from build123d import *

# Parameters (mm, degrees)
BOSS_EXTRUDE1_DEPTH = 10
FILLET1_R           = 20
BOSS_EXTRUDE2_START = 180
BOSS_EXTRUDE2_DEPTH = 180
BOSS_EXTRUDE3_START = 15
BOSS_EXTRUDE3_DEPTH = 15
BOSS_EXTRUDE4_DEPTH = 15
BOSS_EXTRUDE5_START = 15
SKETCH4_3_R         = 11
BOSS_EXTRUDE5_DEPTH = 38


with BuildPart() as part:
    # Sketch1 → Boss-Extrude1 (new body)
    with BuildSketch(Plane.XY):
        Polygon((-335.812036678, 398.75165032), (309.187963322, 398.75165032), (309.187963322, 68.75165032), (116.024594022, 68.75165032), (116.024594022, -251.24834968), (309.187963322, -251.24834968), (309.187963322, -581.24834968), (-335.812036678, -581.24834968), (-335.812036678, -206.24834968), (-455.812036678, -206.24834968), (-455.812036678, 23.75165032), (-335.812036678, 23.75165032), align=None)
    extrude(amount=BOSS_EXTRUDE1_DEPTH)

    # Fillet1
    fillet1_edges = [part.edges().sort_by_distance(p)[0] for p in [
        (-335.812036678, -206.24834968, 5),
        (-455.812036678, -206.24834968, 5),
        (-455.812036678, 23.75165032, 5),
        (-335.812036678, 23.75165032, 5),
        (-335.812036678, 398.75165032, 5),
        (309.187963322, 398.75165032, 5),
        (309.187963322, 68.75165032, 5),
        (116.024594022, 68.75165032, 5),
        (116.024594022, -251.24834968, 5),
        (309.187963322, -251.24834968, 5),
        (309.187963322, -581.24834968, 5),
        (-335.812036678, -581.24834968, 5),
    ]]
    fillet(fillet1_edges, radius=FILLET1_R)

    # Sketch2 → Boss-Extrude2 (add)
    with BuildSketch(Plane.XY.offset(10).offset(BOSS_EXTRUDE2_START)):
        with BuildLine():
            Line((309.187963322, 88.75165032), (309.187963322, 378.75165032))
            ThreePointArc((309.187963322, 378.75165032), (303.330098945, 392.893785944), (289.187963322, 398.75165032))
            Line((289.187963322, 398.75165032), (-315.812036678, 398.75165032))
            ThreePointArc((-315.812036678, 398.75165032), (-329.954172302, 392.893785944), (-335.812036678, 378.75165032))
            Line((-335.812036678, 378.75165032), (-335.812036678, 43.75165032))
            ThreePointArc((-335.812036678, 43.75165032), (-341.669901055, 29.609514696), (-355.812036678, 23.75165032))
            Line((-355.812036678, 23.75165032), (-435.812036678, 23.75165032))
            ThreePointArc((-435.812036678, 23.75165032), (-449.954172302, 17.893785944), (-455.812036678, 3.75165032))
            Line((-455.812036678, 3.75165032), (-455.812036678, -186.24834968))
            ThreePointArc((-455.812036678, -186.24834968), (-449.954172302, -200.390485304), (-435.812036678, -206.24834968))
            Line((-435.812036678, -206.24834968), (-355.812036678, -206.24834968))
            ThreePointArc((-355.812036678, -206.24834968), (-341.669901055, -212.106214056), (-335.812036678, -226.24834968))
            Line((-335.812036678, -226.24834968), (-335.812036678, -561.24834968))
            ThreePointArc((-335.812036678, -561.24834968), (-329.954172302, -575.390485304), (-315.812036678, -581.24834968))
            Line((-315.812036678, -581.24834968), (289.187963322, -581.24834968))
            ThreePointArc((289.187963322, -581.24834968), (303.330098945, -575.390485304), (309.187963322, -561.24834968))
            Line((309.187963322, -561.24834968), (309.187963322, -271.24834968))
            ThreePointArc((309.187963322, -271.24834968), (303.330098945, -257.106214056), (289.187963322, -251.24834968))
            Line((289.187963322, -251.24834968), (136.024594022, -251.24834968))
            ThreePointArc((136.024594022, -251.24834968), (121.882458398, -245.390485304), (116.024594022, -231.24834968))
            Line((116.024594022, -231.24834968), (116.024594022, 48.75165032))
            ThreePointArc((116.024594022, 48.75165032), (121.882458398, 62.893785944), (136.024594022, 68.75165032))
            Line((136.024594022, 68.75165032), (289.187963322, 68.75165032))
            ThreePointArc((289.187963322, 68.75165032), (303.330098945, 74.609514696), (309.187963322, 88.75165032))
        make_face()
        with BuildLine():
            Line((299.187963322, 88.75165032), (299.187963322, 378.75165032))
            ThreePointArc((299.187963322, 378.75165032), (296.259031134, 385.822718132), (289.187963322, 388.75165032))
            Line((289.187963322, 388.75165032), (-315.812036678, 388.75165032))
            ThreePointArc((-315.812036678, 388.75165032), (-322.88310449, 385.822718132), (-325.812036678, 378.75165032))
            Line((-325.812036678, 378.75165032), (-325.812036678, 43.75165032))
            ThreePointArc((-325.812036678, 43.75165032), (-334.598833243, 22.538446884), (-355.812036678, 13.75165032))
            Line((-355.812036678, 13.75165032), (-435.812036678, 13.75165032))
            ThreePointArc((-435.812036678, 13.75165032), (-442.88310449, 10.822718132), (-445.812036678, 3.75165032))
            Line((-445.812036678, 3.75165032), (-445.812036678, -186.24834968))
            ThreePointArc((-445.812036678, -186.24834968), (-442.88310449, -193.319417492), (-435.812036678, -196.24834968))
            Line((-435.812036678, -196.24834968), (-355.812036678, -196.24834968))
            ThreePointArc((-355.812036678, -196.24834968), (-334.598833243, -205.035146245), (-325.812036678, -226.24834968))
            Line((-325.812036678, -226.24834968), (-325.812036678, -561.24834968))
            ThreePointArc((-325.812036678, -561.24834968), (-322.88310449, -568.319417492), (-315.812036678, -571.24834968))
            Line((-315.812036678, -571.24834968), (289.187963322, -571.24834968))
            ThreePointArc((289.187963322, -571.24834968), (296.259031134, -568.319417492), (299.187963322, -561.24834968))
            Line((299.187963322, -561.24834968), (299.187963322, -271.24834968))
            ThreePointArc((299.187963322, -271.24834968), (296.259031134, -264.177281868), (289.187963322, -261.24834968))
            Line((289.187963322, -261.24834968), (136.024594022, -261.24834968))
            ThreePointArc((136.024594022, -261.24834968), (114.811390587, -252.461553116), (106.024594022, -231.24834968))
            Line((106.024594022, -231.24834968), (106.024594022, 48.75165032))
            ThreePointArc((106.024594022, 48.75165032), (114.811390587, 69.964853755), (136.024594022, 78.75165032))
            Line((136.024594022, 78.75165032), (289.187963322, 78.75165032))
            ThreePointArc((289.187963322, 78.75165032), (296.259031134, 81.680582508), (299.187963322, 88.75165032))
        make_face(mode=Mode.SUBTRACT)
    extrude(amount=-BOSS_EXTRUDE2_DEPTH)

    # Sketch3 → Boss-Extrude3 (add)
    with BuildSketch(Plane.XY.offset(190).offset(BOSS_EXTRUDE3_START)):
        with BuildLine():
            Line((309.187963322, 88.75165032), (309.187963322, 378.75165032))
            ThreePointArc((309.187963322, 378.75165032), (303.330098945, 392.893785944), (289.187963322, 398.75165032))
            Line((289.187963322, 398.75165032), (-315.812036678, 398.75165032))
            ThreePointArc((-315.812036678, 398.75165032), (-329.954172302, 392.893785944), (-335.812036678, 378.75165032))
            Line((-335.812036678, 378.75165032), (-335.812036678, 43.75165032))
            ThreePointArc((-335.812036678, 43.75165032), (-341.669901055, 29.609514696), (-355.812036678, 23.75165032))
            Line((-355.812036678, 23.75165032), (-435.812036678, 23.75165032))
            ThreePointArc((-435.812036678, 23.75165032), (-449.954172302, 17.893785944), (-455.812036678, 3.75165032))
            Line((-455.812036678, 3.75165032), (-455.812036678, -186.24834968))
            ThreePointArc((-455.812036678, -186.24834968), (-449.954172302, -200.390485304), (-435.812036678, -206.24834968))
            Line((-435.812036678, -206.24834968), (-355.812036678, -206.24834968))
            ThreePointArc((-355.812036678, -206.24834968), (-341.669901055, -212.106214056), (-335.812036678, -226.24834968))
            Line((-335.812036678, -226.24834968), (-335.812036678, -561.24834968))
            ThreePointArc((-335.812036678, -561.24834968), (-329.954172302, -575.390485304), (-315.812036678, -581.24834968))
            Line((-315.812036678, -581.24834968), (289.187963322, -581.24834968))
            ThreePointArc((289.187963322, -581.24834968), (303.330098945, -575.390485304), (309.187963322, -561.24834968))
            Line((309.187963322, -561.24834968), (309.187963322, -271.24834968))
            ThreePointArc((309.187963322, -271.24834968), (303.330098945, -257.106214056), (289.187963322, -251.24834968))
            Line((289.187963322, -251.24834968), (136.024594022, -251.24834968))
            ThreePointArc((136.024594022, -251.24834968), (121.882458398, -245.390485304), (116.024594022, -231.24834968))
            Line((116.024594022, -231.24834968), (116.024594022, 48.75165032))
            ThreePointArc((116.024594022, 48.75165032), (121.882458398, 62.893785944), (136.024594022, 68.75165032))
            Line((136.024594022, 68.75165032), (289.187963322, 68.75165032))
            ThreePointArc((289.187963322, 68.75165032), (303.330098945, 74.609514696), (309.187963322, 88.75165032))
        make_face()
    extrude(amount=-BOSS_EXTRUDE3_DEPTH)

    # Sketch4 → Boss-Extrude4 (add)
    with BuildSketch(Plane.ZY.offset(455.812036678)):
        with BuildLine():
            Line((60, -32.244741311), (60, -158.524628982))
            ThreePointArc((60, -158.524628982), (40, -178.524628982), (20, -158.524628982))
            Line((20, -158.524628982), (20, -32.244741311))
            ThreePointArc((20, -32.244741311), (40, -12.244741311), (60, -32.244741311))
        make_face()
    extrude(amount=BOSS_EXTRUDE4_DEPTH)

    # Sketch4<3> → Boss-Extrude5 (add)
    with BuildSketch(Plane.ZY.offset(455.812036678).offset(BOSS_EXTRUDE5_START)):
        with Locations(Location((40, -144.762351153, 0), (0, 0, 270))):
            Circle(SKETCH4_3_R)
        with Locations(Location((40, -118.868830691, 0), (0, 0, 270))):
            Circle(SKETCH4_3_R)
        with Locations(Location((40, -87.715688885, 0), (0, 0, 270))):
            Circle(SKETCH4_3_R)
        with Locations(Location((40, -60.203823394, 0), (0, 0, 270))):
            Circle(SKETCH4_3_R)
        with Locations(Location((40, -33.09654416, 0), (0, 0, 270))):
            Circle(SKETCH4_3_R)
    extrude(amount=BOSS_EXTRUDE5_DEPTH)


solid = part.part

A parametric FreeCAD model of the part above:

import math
import FreeCAD as App
import Part
import Sketcher


def edges_at(feature, points):
    """Names of the edges that pass closest to the given points."""
    edges = feature.Shape.Edges
    near = lambda p: min(range(len(edges)), key=lambda i: edges[i].distToShape(Part.Vertex(*p))[0])
    return sorted({f"Edge{near(p) + 1}" for p in points})


def add_polygon(sketch, points):
    """Adds a closed chain of lines whose ends are joined by coincident constraints."""
    first, n = sketch.GeometryCount, len(points)
    for a, b in zip(points, points[1:] + points[:1]):
        sketch.addGeometry(Part.LineSegment(App.Vector(*a, 0), App.Vector(*b, 0)), False)
    for i in range(n):
        sketch.addConstraint(Sketcher.Constraint("Coincident", first + i, 2, first + (i + 1) % n, 1))

doc = App.newDocument("Part")
params = doc.addObject("Spreadsheet::Sheet", "Params")
for row, (alias, value) in enumerate([
    ("sketch1_width", "645 mm"),
    ("sketch1_width2", "120 mm"),
    ("sketch1_height", "375 mm"),
    ("sketch1_height2", "230 mm"),
    ("sketch1_height3", "330 mm"),
    ("pad1_length", "10 mm"),
    ("fillet_radius", "20 mm"),
    ("sketch2_radius", "20 mm"),
    ("sketch2_radius2", "10 mm"),
    ("sketch2_width", "605 mm"),
    ("sketch2_width2", "80 mm"),
    ("sketch2_height", "290 mm"),
    ("pad2_length", "180 mm"),
    ("sketch3_radius", "20 mm"),
    ("sketch3_width", "605 mm"),
    ("sketch3_width2", "80 mm"),
    ("sketch3_height", "290 mm"),
    ("sketch3_height2", "335 mm"),
    ("pad3_length", "15 mm"),
    ("sketch4_radius", "20 mm"),
    ("pad4_length", "15 mm"),
    ("sketch5_diameter", "22 mm"),
    ("pad5_length", "38 mm"),
], start=1):
    params.set(f"A{row}", alias)
    params.set(f"B{row}", "=" + value)
    params.setAlias(f"B{row}", alias)

body = doc.addObject("PartDesign::Body", "Body")

# Sketch on XY plane
sketch1 = doc.addObject("Sketcher::SketchObject", "Sketch")
body.addObject(sketch1)
sketch1.AttachmentSupport = (doc.XY_Plane, [""])
sketch1.MapMode = "FlatFace"
add_polygon(sketch1, [(309, 399), (-336, 399), (-336, 24), (-456, 24), (-456, -206), (-336, -206), (-336, -581), (309, -581), (309, -251), (116, -251), (116, 69), (309, 69)])  # lines 0-11
sketch1.addConstraint(Sketcher.Constraint("Horizontal", 0))
sketch1.addConstraint(Sketcher.Constraint("Vertical", 1))
sketch1.addConstraint(Sketcher.Constraint("Horizontal", 2))
sketch1.addConstraint(Sketcher.Constraint("Vertical", 3))
sketch1.addConstraint(Sketcher.Constraint("Horizontal", 4))
sketch1.addConstraint(Sketcher.Constraint("Vertical", 5))
sketch1.addConstraint(Sketcher.Constraint("Horizontal", 6))
sketch1.addConstraint(Sketcher.Constraint("Vertical", 7))
sketch1.addConstraint(Sketcher.Constraint("Horizontal", 8))
sketch1.addConstraint(Sketcher.Constraint("Vertical", 9))
sketch1.addConstraint(Sketcher.Constraint("Horizontal", 10))
sketch1.addConstraint(Sketcher.Constraint("Vertical", 11))
sketch1.addConstraint(Sketcher.Constraint("Vertical", 1, 2, 4, 2))
sketch1.addConstraint(Sketcher.Constraint("Vertical", 7, 2, 10, 2))
sketch1.addConstraint(Sketcher.Constraint("Equal", 1, 5))
sketch1.addConstraint(Sketcher.Constraint("Equal", 7, 11))
sketch1.addConstraint(Sketcher.Constraint("DistanceX", 0, 2, 0, 1, 645.0))
sketch1.addConstraint(Sketcher.Constraint("DistanceX", 2, 2, 2, 1, 120.0))
sketch1.addConstraint(Sketcher.Constraint("DistanceY", 1, 2, 1, 1, 375.0))
sketch1.addConstraint(Sketcher.Constraint("DistanceY", 3, 2, 3, 1, 230.0))
sketch1.addConstraint(Sketcher.Constraint("DistanceY", 7, 1, 7, 2, 330.0))
sketch1.addConstraint(Sketcher.Constraint("DistanceX", 8, 2, 8, 1, 193.163369))
sketch1.addConstraint(Sketcher.Constraint("DistanceY", -1, 1, 0, 2, 398.75165))
sketch1.addConstraint(Sketcher.Constraint("DistanceX", 0, 2, -1, 1, 335.812037))
sketch1.setExpression("Constraints[28]", "Params.sketch1_width")
sketch1.setExpression("Constraints[29]", "Params.sketch1_width2")
sketch1.setExpression("Constraints[30]", "Params.sketch1_height")
sketch1.setExpression("Constraints[31]", "Params.sketch1_height2")
sketch1.setExpression("Constraints[32]", "Params.sketch1_height3")
pad1 = doc.addObject("PartDesign::Pad", "Pad")
body.addObject(pad1)
pad1.Profile = sketch1
pad1.setExpression("Length", "Params.pad1_length")
doc.recompute()

fillet = doc.addObject("PartDesign::Fillet", "Fillet")
body.addObject(fillet)
fillet.Base = (pad1, edges_at(pad1, [
    (-335.812, -206.248, 5),
    (-455.812, -206.248, 5),
    (-455.812, 23.752, 5),
    (-335.812, 23.752, 5),
    (-335.812, 398.752, 5),
    (309.188, 398.752, 5),
    (309.188, 68.752, 5),
    (116.025, 68.752, 5),
    (116.025, -251.248, 5),
    (309.188, -251.248, 5),
    (309.188, -581.248, 5),
    (-335.812, -581.248, 5),
]))
fillet.setExpression("Radius", "Params.fillet_radius")

# Sketch on XY plane
sketch2 = doc.addObject("Sketcher::SketchObject", "Sketch001")
body.addObject(sketch2)
sketch2.AttachmentSupport = (doc.XY_Plane, [""])
sketch2.MapMode = "FlatFace"
sketch2.AttachmentOffset = App.Placement(App.Vector(0, 0, 190), App.Rotation())
sketch2.addGeometry(Part.LineSegment(App.Vector(309, 89, 0), App.Vector(309, 379, 0)), False)
sketch2.addGeometry(Part.ArcOfCircle(Part.Circle(App.Vector(289, 379, 0), App.Vector(0, 0, 1), 20), math.radians(0), math.radians(90)), False)
sketch2.addGeometry(Part.LineSegment(App.Vector(289, 399, 0), App.Vector(-316, 399, 0)), False)
sketch2.addGeometry(Part.ArcOfCircle(Part.Circle(App.Vector(-316, 379, 0), App.Vector(0, 0, 1), 20), math.radians(90), math.radians(180)), False)
sketch2.addGeometry(Part.LineSegment(App.Vector(-336, 379, 0), App.Vector(-336, 44, 0)), False)
sketch2.addGeometry(Part.ArcOfCircle(Part.Circle(App.Vector(-356, 44, 0), App.Vector(0, 0, 1), 20), math.radians(-90), math.radians(0)), False)
sketch2.addGeometry(Part.LineSegment(App.Vector(-356, 24, 0), App.Vector(-436, 24, 0)), False)
sketch2.addGeometry(Part.ArcOfCircle(Part.Circle(App.Vector(-436, 4, 0), App.Vector(0, 0, 1), 20), math.radians(90), math.radians(180)), False)
sketch2.addGeometry(Part.LineSegment(App.Vector(-456, 4, 0), App.Vector(-456, -186, 0)), False)
sketch2.addGeometry(Part.ArcOfCircle(Part.Circle(App.Vector(-436, -186, 0), App.Vector(0, 0, 1), 20), math.radians(180), math.radians(270)), False)
sketch2.addGeometry(Part.LineSegment(App.Vector(-436, -206, 0), App.Vector(-356, -206, 0)), False)
sketch2.addGeometry(Part.ArcOfCircle(Part.Circle(App.Vector(-356, -226, 0), App.Vector(0, 0, 1), 20), math.radians(0), math.radians(90)), False)
sketch2.addGeometry(Part.LineSegment(App.Vector(-336, -226, 0), App.Vector(-336, -561, 0)), False)
sketch2.addGeometry(Part.ArcOfCircle(Part.Circle(App.Vector(-316, -561, 0), App.Vector(0, 0, 1), 20), math.radians(180), math.radians(270)), False)
sketch2.addGeometry(Part.LineSegment(App.Vector(-316, -581, 0), App.Vector(289, -581, 0)), False)
sketch2.addGeometry(Part.ArcOfCircle(Part.Circle(App.Vector(289, -561, 0), App.Vector(0, 0, 1), 20), math.radians(-90), math.radians(0)), False)
sketch2.addGeometry(Part.LineSegment(App.Vector(309, -561, 0), App.Vector(309, -271, 0)), False)
sketch2.addGeometry(Part.ArcOfCircle(Part.Circle(App.Vector(289, -271, 0), App.Vector(0, 0, 1), 20), math.radians(0), math.radians(90)), False)
sketch2.addGeometry(Part.LineSegment(App.Vector(289, -251, 0), App.Vector(136, -251, 0)), False)
sketch2.addGeometry(Part.ArcOfCircle(Part.Circle(App.Vector(136, -231, 0), App.Vector(0, 0, 1), 20), math.radians(180), math.radians(270)), False)
sketch2.addGeometry(Part.LineSegment(App.Vector(116, -231, 0), App.Vector(116, 49, 0)), False)
sketch2.addGeometry(Part.ArcOfCircle(Part.Circle(App.Vector(136, 49, 0), App.Vector(0, 0, 1), 20), math.radians(90), math.radians(180)), False)
sketch2.addGeometry(Part.LineSegment(App.Vector(136, 69, 0), App.Vector(289, 69, 0)), False)
sketch2.addGeometry(Part.ArcOfCircle(Part.Circle(App.Vector(289, 89, 0), App.Vector(0, 0, 1), 20), math.radians(-90), math.radians(0)), False)
sketch2.addGeometry(Part.LineSegment(App.Vector(299, 379, 0), App.Vector(299, 89, 0)), False)
sketch2.addGeometry(Part.ArcOfCircle(Part.Circle(App.Vector(289, 89, 0), App.Vector(0, 0, 1), 10), math.radians(-90), math.radians(0)), False)
sketch2.addGeometry(Part.LineSegment(App.Vector(289, 79, 0), App.Vector(136, 79, 0)), False)
sketch2.addGeometry(Part.ArcOfCircle(Part.Circle(App.Vector(136, 49, 0), App.Vector(0, 0, 1), 30), math.radians(90), math.radians(180)), False)
sketch2.addGeometry(Part.LineSegment(App.Vector(106, 49, 0), App.Vector(106, -231, 0)), False)
sketch2.addGeometry(Part.ArcOfCircle(Part.Circle(App.Vector(136, -231, 0), App.Vector(0, 0, 1), 30), math.radians(180), math.radians(270)), False)
sketch2.addGeometry(Part.LineSegment(App.Vector(136, -261, 0), App.Vector(289, -261, 0)), False)
sketch2.addGeometry(Part.ArcOfCircle(Part.Circle(App.Vector(289, -271, 0), App.Vector(0, 0, 1), 10), math.radians(0), math.radians(90)), False)
sketch2.addGeometry(Part.LineSegment(App.Vector(299, -271, 0), App.Vector(299, -561, 0)), False)
sketch2.addGeometry(Part.ArcOfCircle(Part.Circle(App.Vector(289, -561, 0), App.Vector(0, 0, 1), 10), math.radians(-90), math.radians(0)), False)
sketch2.addGeometry(Part.LineSegment(App.Vector(289, -571, 0), App.Vector(-316, -571, 0)), False)
sketch2.addGeometry(Part.ArcOfCircle(Part.Circle(App.Vector(-316, -561, 0), App.Vector(0, 0, 1), 10), math.radians(180), math.radians(270)), False)
sketch2.addGeometry(Part.LineSegment(App.Vector(-326, -561, 0), App.Vector(-326, -226, 0)), False)
sketch2.addGeometry(Part.ArcOfCircle(Part.Circle(App.Vector(-356, -226, 0), App.Vector(0, 0, 1), 30), math.radians(0), math.radians(90)), False)
sketch2.addGeometry(Part.LineSegment(App.Vector(-356, -196, 0), App.Vector(-436, -196, 0)), False)
sketch2.addGeometry(Part.ArcOfCircle(Part.Circle(App.Vector(-436, -186, 0), App.Vector(0, 0, 1), 10), math.radians(180), math.radians(270)), False)
sketch2.addGeometry(Part.LineSegment(App.Vector(-446, -186, 0), App.Vector(-446, 4, 0)), False)
sketch2.addGeometry(Part.ArcOfCircle(Part.Circle(App.Vector(-436, 4, 0), App.Vector(0, 0, 1), 10), math.radians(90), math.radians(180)), False)
sketch2.addGeometry(Part.LineSegment(App.Vector(-436, 14, 0), App.Vector(-356, 14, 0)), False)
sketch2.addGeometry(Part.ArcOfCircle(Part.Circle(App.Vector(-356, 44, 0), App.Vector(0, 0, 1), 30), math.radians(-90), math.radians(0)), False)
sketch2.addGeometry(Part.LineSegment(App.Vector(-326, 44, 0), App.Vector(-326, 379, 0)), False)
sketch2.addGeometry(Part.ArcOfCircle(Part.Circle(App.Vector(-316, 379, 0), App.Vector(0, 0, 1), 10), math.radians(90), math.radians(180)), False)
sketch2.addGeometry(Part.LineSegment(App.Vector(-316, 389, 0), App.Vector(289, 389, 0)), False)
sketch2.addGeometry(Part.ArcOfCircle(Part.Circle(App.Vector(289, 379, 0), App.Vector(0, 0, 1), 10), math.radians(0), math.radians(90)), False)
sketch2.addConstraint(Sketcher.Constraint("Tangent", 0, 2, 1, 1))
sketch2.addConstraint(Sketcher.Constraint("Tangent", 1, 2, 2, 1))
sketch2.addConstraint(Sketcher.Constraint("Tangent", 2, 2, 3, 1))
sketch2.addConstraint(Sketcher.Constraint("Tangent", 3, 2, 4, 1))
sketch2.addConstraint(Sketcher.Constraint("Tangent", 4, 2, 5, 2))
sketch2.addConstraint(Sketcher.Constraint("Tangent", 5, 1, 6, 1))
sketch2.addConstraint(Sketcher.Constraint("Tangent", 6, 2, 7, 1))
sketch2.addConstraint(Sketcher.Constraint("Tangent", 7, 2, 8, 1))
sketch2.addConstraint(Sketcher.Constraint("Tangent", 8, 2, 9, 1))
sketch2.addConstraint(Sketcher.Constraint("Tangent", 9, 2, 10, 1))
sketch2.addConstraint(Sketcher.Constraint("Tangent", 10, 2, 11, 2))
sketch2.addConstraint(Sketcher.Constraint("Tangent", 11, 1, 12, 1))
sketch2.addConstraint(Sketcher.Constraint("Tangent", 12, 2, 13, 1))
sketch2.addConstraint(Sketcher.Constraint("Tangent", 13, 2, 14, 1))
sketch2.addConstraint(Sketcher.Constraint("Tangent", 14, 2, 15, 1))
sketch2.addConstraint(Sketcher.Constraint("Tangent", 15, 2, 16, 1))
sketch2.addConstraint(Sketcher.Constraint("Tangent", 16, 2, 17, 1))
sketch2.addConstraint(Sketcher.Constraint("Tangent", 17, 2, 18, 1))
sketch2.addConstraint(Sketcher.Constraint("Tangent", 18, 2, 19, 2))
sketch2.addConstraint(Sketcher.Constraint("Tangent", 19, 1, 20, 1))
sketch2.addConstraint(Sketcher.Constraint("Tangent", 20, 2, 21, 2))
sketch2.addConstraint(Sketcher.Constraint("Tangent", 21, 1, 22, 1))
sketch2.addConstraint(Sketcher.Constraint("Tangent", 22, 2, 23, 1))
sketch2.addConstraint(Sketcher.Constraint("Tangent", 23, 2, 0, 1))
sketch2.addConstraint(Sketcher.Constraint("Tangent", 24, 2, 25, 2))
sketch2.addConstraint(Sketcher.Constraint("Tangent", 25, 1, 26, 1))
sketch2.addConstraint(Sketcher.Constraint("Tangent", 26, 2, 27, 1))
sketch2.addConstraint(Sketcher.Constraint("Tangent", 27, 2, 28, 1))
sketch2.addConstraint(Sketcher.Constraint("Tangent", 28, 2, 29, 1))
sketch2.addConstraint(Sketcher.Constraint("Tangent", 29, 2, 30, 1))
sketch2.addConstraint(Sketcher.Constraint("Tangent", 30, 2, 31, 2))
sketch2.addConstraint(Sketcher.Constraint("Tangent", 31, 1, 32, 1))
sketch2.addConstraint(Sketcher.Constraint("Tangent", 32, 2, 33, 2))
sketch2.addConstraint(Sketcher.Constraint("Tangent", 33, 1, 34, 1))
sketch2.addConstraint(Sketcher.Constraint("Tangent", 34, 2, 35, 2))
sketch2.addConstraint(Sketcher.Constraint("Tangent", 35, 1, 36, 1))
sketch2.addConstraint(Sketcher.Constraint("Tangent", 36, 2, 37, 1))
sketch2.addConstraint(Sketcher.Constraint("Tangent", 37, 2, 38, 1))
sketch2.addConstraint(Sketcher.Constraint("Tangent", 38, 2, 39, 2))
sketch2.addConstraint(Sketcher.Constraint("Tangent", 39, 1, 40, 1))
sketch2.addConstraint(Sketcher.Constraint("Tangent", 40, 2, 41, 2))
sketch2.addConstraint(Sketcher.Constraint("Tangent", 41, 1, 42, 1))
sketch2.addConstraint(Sketcher.Constraint("Tangent", 42, 2, 43, 1))
sketch2.addConstraint(Sketcher.Constraint("Tangent", 43, 2, 44, 1))
sketch2.addConstraint(Sketcher.Constraint("Tangent", 44, 2, 45, 2))
sketch2.addConstraint(Sketcher.Constraint("Tangent", 45, 1, 46, 1))
sketch2.addConstraint(Sketcher.Constraint("Tangent", 46, 2, 47, 2))
sketch2.addConstraint(Sketcher.Constraint("Tangent", 47, 1, 24, 1))
sketch2.addConstraint(Sketcher.Constraint("Vertical", 0))
sketch2.addConstraint(Sketcher.Constraint("Horizontal", 2))
sketch2.addConstraint(Sketcher.Constraint("Vertical", 4))
sketch2.addConstraint(Sketcher.Constraint("Horizontal", 6))
sketch2.addConstraint(Sketcher.Constraint("Vertical", 8))
sketch2.addConstraint(Sketcher.Constraint("Horizontal", 10))
sketch2.addConstraint(Sketcher.Constraint("Vertical", 12))
sketch2.addConstraint(Sketcher.Constraint("Horizontal", 14))
sketch2.addConstraint(Sketcher.Constraint("Vertical", 16))
sketch2.addConstraint(Sketcher.Constraint("Horizontal", 18))
sketch2.addConstraint(Sketcher.Constraint("Vertical", 20))
sketch2.addConstraint(Sketcher.Constraint("Horizontal", 22))
sketch2.addConstraint(Sketcher.Constraint("Vertical", 24))
sketch2.addConstraint(Sketcher.Constraint("Horizontal", 26))
sketch2.addConstraint(Sketcher.Constraint("Vertical", 28))
sketch2.addConstraint(Sketcher.Constraint("Horizontal", 30))
sketch2.addConstraint(Sketcher.Constraint("Vertical", 32))
sketch2.addConstraint(Sketcher.Constraint("Horizontal", 34))
sketch2.addConstraint(Sketcher.Constraint("Vertical", 36))
sketch2.addConstraint(Sketcher.Constraint("Horizontal", 38))
sketch2.addConstraint(Sketcher.Constraint("Vertical", 40))
sketch2.addConstraint(Sketcher.Constraint("Horizontal", 42))
sketch2.addConstraint(Sketcher.Constraint("Vertical", 44))
sketch2.addConstraint(Sketcher.Constraint("Horizontal", 46))
sketch2.addConstraint(Sketcher.Constraint("Coincident", 25, 3, 23, 3))
sketch2.addConstraint(Sketcher.Constraint("Coincident", 27, 3, 21, 3))
sketch2.addConstraint(Sketcher.Constraint("Coincident", 29, 3, 19, 3))
sketch2.addConstraint(Sketcher.Constraint("Coincident", 31, 3, 17, 3))
sketch2.addConstraint(Sketcher.Constraint("Coincident", 33, 3, 15, 3))
sketch2.addConstraint(Sketcher.Constraint("Coincident", 35, 3, 13, 3))
sketch2.addConstraint(Sketcher.Constraint("Coincident", 37, 3, 11, 3))
sketch2.addConstraint(Sketcher.Constraint("Coincident", 39, 3, 9, 3))
sketch2.addConstraint(Sketcher.Constraint("Coincident", 41, 3, 7, 3))
sketch2.addConstraint(Sketcher.Constraint("Coincident", 43, 3, 5, 3))
sketch2.addConstraint(Sketcher.Constraint("Coincident", 45, 3, 3, 3))
sketch2.addConstraint(Sketcher.Constraint("Equal", 1, 3))
sketch2.addConstraint(Sketcher.Constraint("Equal", 3, 5))
sketch2.addConstraint(Sketcher.Constraint("Equal", 5, 7))
sketch2.addConstraint(Sketcher.Constraint("Equal", 7, 9))
sketch2.addConstraint(Sketcher.Constraint("Equal", 9, 11))
sketch2.addConstraint(Sketcher.Constraint("Equal", 11, 13))
sketch2.addConstraint(Sketcher.Constraint("Equal", 13, 15))
sketch2.addConstraint(Sketcher.Constraint("Equal", 15, 17))
sketch2.addConstraint(Sketcher.Constraint("Equal", 17, 19))
sketch2.addConstraint(Sketcher.Constraint("Equal", 19, 21))
sketch2.addConstraint(Sketcher.Constraint("Equal", 21, 23))
sketch2.addConstraint(Sketcher.Constraint("Equal", 45, 47))
sketch2.addConstraint(Sketcher.Constraint("Vertical", 5, 3, 11, 3))
sketch2.addConstraint(Sketcher.Constraint("Vertical", 1, 3, 15, 3))
sketch2.addConstraint(Sketcher.Constraint("Equal", 4, 12))
sketch2.addConstraint(Sketcher.Constraint("Equal", 0, 16))
sketch2.addConstraint(Sketcher.Constraint("Radius", 1, 20.0))
sketch2.addConstraint(Sketcher.Constraint("Radius", 25, 10.0))
sketch2.addConstraint(Sketcher.Constraint("DistanceX", 2, 2, 2, 1, 605.0))
sketch2.addConstraint(Sketcher.Constraint("DistanceX", 6, 2, 6, 1, 80.0))
sketch2.addConstraint(Sketcher.Constraint("DistanceY", 0, 1, 0, 2, 290.0))
sketch2.addConstraint(Sketcher.Constraint("DistanceY", 4, 2, 4, 1, 335.0))
sketch2.addConstraint(Sketcher.Constraint("DistanceY", 8, 2, 8, 1, 190.0))
sketch2.addConstraint(Sketcher.Constraint("DistanceX", 18, 2, 18, 1, 153.163369))
sketch2.addConstraint(Sketcher.Constraint("DistanceY", -1, 1, 1, 3, 378.75165))
sketch2.addConstraint(Sketcher.Constraint("DistanceX", -1, 1, 1, 3, 289.187963))
sketch2.setExpression("Constraints[99]", "Params.sketch2_radius")
sketch2.setExpression("Constraints[100]", "Params.sketch2_radius2")
sketch2.setExpression("Constraints[101]", "Params.sketch2_width")
sketch2.setExpression("Constraints[102]", "Params.sketch2_width2")
sketch2.setExpression("Constraints[103]", "Params.sketch2_height")
pad2 = doc.addObject("PartDesign::Pad", "Pad001")
body.addObject(pad2)
pad2.Profile = sketch2
pad2.setExpression("Length", "Params.pad2_length")
pad2.Reversed = True

# Sketch on XY plane
sketch3 = doc.addObject("Sketcher::SketchObject", "Sketch002")
body.addObject(sketch3)
sketch3.AttachmentSupport = (doc.XY_Plane, [""])
sketch3.MapMode = "FlatFace"
sketch3.AttachmentOffset = App.Placement(App.Vector(0, 0, 205), App.Rotation())
sketch3.addGeometry(Part.LineSegment(App.Vector(309, 89, 0), App.Vector(309, 379, 0)), False)
sketch3.addGeometry(Part.ArcOfCircle(Part.Circle(App.Vector(289, 379, 0), App.Vector(0, 0, 1), 20), math.radians(0), math.radians(90)), False)
sketch3.addGeometry(Part.LineSegment(App.Vector(289, 399, 0), App.Vector(-316, 399, 0)), False)
sketch3.addGeometry(Part.ArcOfCircle(Part.Circle(App.Vector(-316, 379, 0), App.Vector(0, 0, 1), 20), math.radians(90), math.radians(180)), False)
sketch3.addGeometry(Part.LineSegment(App.Vector(-336, 379, 0), App.Vector(-336, 44, 0)), False)
sketch3.addGeometry(Part.ArcOfCircle(Part.Circle(App.Vector(-356, 44, 0), App.Vector(0, 0, 1), 20), math.radians(-90), math.radians(0)), False)
sketch3.addGeometry(Part.LineSegment(App.Vector(-356, 24, 0), App.Vector(-436, 24, 0)), False)
sketch3.addGeometry(Part.ArcOfCircle(Part.Circle(App.Vector(-436, 4, 0), App.Vector(0, 0, 1), 20), math.radians(90), math.radians(180)), False)
sketch3.addGeometry(Part.LineSegment(App.Vector(-456, 4, 0), App.Vector(-456, -186, 0)), False)
sketch3.addGeometry(Part.ArcOfCircle(Part.Circle(App.Vector(-436, -186, 0), App.Vector(0, 0, 1), 20), math.radians(180), math.radians(270)), False)
sketch3.addGeometry(Part.LineSegment(App.Vector(-436, -206, 0), App.Vector(-356, -206, 0)), False)
sketch3.addGeometry(Part.ArcOfCircle(Part.Circle(App.Vector(-356, -226, 0), App.Vector(0, 0, 1), 20), math.radians(0), math.radians(90)), False)
sketch3.addGeometry(Part.LineSegment(App.Vector(-336, -226, 0), App.Vector(-336, -561, 0)), False)
sketch3.addGeometry(Part.ArcOfCircle(Part.Circle(App.Vector(-316, -561, 0), App.Vector(0, 0, 1), 20), math.radians(180), math.radians(270)), False)
sketch3.addGeometry(Part.LineSegment(App.Vector(-316, -581, 0), App.Vector(289, -581, 0)), False)
sketch3.addGeometry(Part.ArcOfCircle(Part.Circle(App.Vector(289, -561, 0), App.Vector(0, 0, 1), 20), math.radians(-90), math.radians(0)), False)
sketch3.addGeometry(Part.LineSegment(App.Vector(309, -561, 0), App.Vector(309, -271, 0)), False)
sketch3.addGeometry(Part.ArcOfCircle(Part.Circle(App.Vector(289, -271, 0), App.Vector(0, 0, 1), 20), math.radians(0), math.radians(90)), False)
sketch3.addGeometry(Part.LineSegment(App.Vector(289, -251, 0), App.Vector(136, -251, 0)), False)
sketch3.addGeometry(Part.ArcOfCircle(Part.Circle(App.Vector(136, -231, 0), App.Vector(0, 0, 1), 20), math.radians(180), math.radians(270)), False)
sketch3.addGeometry(Part.LineSegment(App.Vector(116, -231, 0), App.Vector(116, 49, 0)), False)
sketch3.addGeometry(Part.ArcOfCircle(Part.Circle(App.Vector(136, 49, 0), App.Vector(0, 0, 1), 20), math.radians(90), math.radians(180)), False)
sketch3.addGeometry(Part.LineSegment(App.Vector(136, 69, 0), App.Vector(289, 69, 0)), False)
sketch3.addGeometry(Part.ArcOfCircle(Part.Circle(App.Vector(289, 89, 0), App.Vector(0, 0, 1), 20), math.radians(-90), math.radians(0)), False)
sketch3.addConstraint(Sketcher.Constraint("Tangent", 0, 2, 1, 1))
sketch3.addConstraint(Sketcher.Constraint("Tangent", 1, 2, 2, 1))
sketch3.addConstraint(Sketcher.Constraint("Tangent", 2, 2, 3, 1))
sketch3.addConstraint(Sketcher.Constraint("Tangent", 3, 2, 4, 1))
sketch3.addConstraint(Sketcher.Constraint("Tangent", 4, 2, 5, 2))
sketch3.addConstraint(Sketcher.Constraint("Tangent", 5, 1, 6, 1))
sketch3.addConstraint(Sketcher.Constraint("Tangent", 6, 2, 7, 1))
sketch3.addConstraint(Sketcher.Constraint("Tangent", 7, 2, 8, 1))
sketch3.addConstraint(Sketcher.Constraint("Tangent", 8, 2, 9, 1))
sketch3.addConstraint(Sketcher.Constraint("Tangent", 9, 2, 10, 1))
sketch3.addConstraint(Sketcher.Constraint("Tangent", 10, 2, 11, 2))
sketch3.addConstraint(Sketcher.Constraint("Tangent", 11, 1, 12, 1))
sketch3.addConstraint(Sketcher.Constraint("Tangent", 12, 2, 13, 1))
sketch3.addConstraint(Sketcher.Constraint("Tangent", 13, 2, 14, 1))
sketch3.addConstraint(Sketcher.Constraint("Tangent", 14, 2, 15, 1))
sketch3.addConstraint(Sketcher.Constraint("Tangent", 15, 2, 16, 1))
sketch3.addConstraint(Sketcher.Constraint("Tangent", 16, 2, 17, 1))
sketch3.addConstraint(Sketcher.Constraint("Tangent", 17, 2, 18, 1))
sketch3.addConstraint(Sketcher.Constraint("Tangent", 18, 2, 19, 2))
sketch3.addConstraint(Sketcher.Constraint("Tangent", 19, 1, 20, 1))
sketch3.addConstraint(Sketcher.Constraint("Tangent", 20, 2, 21, 2))
sketch3.addConstraint(Sketcher.Constraint("Tangent", 21, 1, 22, 1))
sketch3.addConstraint(Sketcher.Constraint("Tangent", 22, 2, 23, 1))
sketch3.addConstraint(Sketcher.Constraint("Tangent", 23, 2, 0, 1))
sketch3.addConstraint(Sketcher.Constraint("Vertical", 0))
sketch3.addConstraint(Sketcher.Constraint("Horizontal", 2))
sketch3.addConstraint(Sketcher.Constraint("Vertical", 4))
sketch3.addConstraint(Sketcher.Constraint("Horizontal", 6))
sketch3.addConstraint(Sketcher.Constraint("Vertical", 8))
sketch3.addConstraint(Sketcher.Constraint("Horizontal", 10))
sketch3.addConstraint(Sketcher.Constraint("Vertical", 12))
sketch3.addConstraint(Sketcher.Constraint("Horizontal", 14))
sketch3.addConstraint(Sketcher.Constraint("Vertical", 16))
sketch3.addConstraint(Sketcher.Constraint("Horizontal", 18))
sketch3.addConstraint(Sketcher.Constraint("Vertical", 20))
sketch3.addConstraint(Sketcher.Constraint("Horizontal", 22))
sketch3.addConstraint(Sketcher.Constraint("Equal", 1, 3))
sketch3.addConstraint(Sketcher.Constraint("Equal", 3, 5))
sketch3.addConstraint(Sketcher.Constraint("Equal", 5, 7))
sketch3.addConstraint(Sketcher.Constraint("Equal", 7, 9))
sketch3.addConstraint(Sketcher.Constraint("Equal", 9, 11))
sketch3.addConstraint(Sketcher.Constraint("Equal", 11, 13))
sketch3.addConstraint(Sketcher.Constraint("Equal", 13, 15))
sketch3.addConstraint(Sketcher.Constraint("Equal", 15, 17))
sketch3.addConstraint(Sketcher.Constraint("Equal", 17, 19))
sketch3.addConstraint(Sketcher.Constraint("Equal", 19, 21))
sketch3.addConstraint(Sketcher.Constraint("Equal", 21, 23))
sketch3.addConstraint(Sketcher.Constraint("Vertical", 5, 3, 11, 3))
sketch3.addConstraint(Sketcher.Constraint("Vertical", 1, 3, 15, 3))
sketch3.addConstraint(Sketcher.Constraint("Equal", 4, 12))
sketch3.addConstraint(Sketcher.Constraint("Equal", 0, 16))
sketch3.addConstraint(Sketcher.Constraint("Radius", 1, 20.0))
sketch3.addConstraint(Sketcher.Constraint("DistanceX", 2, 2, 2, 1, 605.0))
sketch3.addConstraint(Sketcher.Constraint("DistanceX", 6, 2, 6, 1, 80.0))
sketch3.addConstraint(Sketcher.Constraint("DistanceY", 0, 1, 0, 2, 290.0))
sketch3.addConstraint(Sketcher.Constraint("DistanceY", 4, 2, 4, 1, 335.0))
sketch3.addConstraint(Sketcher.Constraint("DistanceY", 8, 2, 8, 1, 190.0))
sketch3.addConstraint(Sketcher.Constraint("DistanceX", 18, 2, 18, 1, 153.163369))
sketch3.addConstraint(Sketcher.Constraint("DistanceY", -1, 1, 1, 3, 378.75165))
sketch3.addConstraint(Sketcher.Constraint("DistanceX", -1, 1, 1, 3, 289.187963))
sketch3.setExpression("Constraints[51]", "Params.sketch3_radius")
sketch3.setExpression("Constraints[52]", "Params.sketch3_width")
sketch3.setExpression("Constraints[53]", "Params.sketch3_width2")
sketch3.setExpression("Constraints[54]", "Params.sketch3_height")
sketch3.setExpression("Constraints[55]", "Params.sketch3_height2")
pad3 = doc.addObject("PartDesign::Pad", "Pad002")
body.addObject(pad3)
pad3.Profile = sketch3
pad3.setExpression("Length", "Params.pad3_length")
pad3.Reversed = True

# Sketch on YZ plane
sketch4 = doc.addObject("Sketcher::SketchObject", "Sketch003")
body.addObject(sketch4)
sketch4.AttachmentSupport = (doc.YZ_Plane, [""])
sketch4.MapMode = "FlatFace"
sketch4.AttachmentOffset = App.Placement(App.Vector(0, 0, -455.812037), App.Rotation())
sketch4.addGeometry(Part.LineSegment(App.Vector(-159, 60, 0), App.Vector(-32, 60, 0)), False)
sketch4.addGeometry(Part.ArcOfCircle(Part.Circle(App.Vector(-32, 40, 0), App.Vector(0, 0, 1), 20), math.radians(-90), math.radians(90)), False)
sketch4.addGeometry(Part.LineSegment(App.Vector(-32, 20, 0), App.Vector(-159, 20, 0)), False)
sketch4.addGeometry(Part.ArcOfCircle(Part.Circle(App.Vector(-159, 40, 0), App.Vector(0, 0, 1), 20), math.radians(90), math.radians(270)), False)
sketch4.addConstraint(Sketcher.Constraint("Tangent", 0, 2, 1, 2))
sketch4.addConstraint(Sketcher.Constraint("Tangent", 1, 1, 2, 1))
sketch4.addConstraint(Sketcher.Constraint("Tangent", 2, 2, 3, 2))
sketch4.addConstraint(Sketcher.Constraint("Tangent", 3, 1, 0, 1))
sketch4.addConstraint(Sketcher.Constraint("Horizontal", 0))
sketch4.addConstraint(Sketcher.Constraint("Horizontal", 2))
sketch4.addConstraint(Sketcher.Constraint("Radius", 1, 20.0))
sketch4.addConstraint(Sketcher.Constraint("DistanceY", -1, 1, 1, 3, 40.0))
sketch4.addConstraint(Sketcher.Constraint("DistanceX", 0, 1, 0, 2, 126.279888))
sketch4.addConstraint(Sketcher.Constraint("DistanceX", 1, 3, -1, 1, 32.244741))
sketch4.setExpression("Constraints[6]", "Params.sketch4_radius")
pad4 = doc.addObject("PartDesign::Pad", "Pad003")
body.addObject(pad4)
pad4.Profile = sketch4
pad4.setExpression("Length", "Params.pad4_length")
pad4.Reversed = True

# Sketch on YZ plane
sketch5 = doc.addObject("Sketcher::SketchObject", "Sketch004")
body.addObject(sketch5)
sketch5.AttachmentSupport = (doc.YZ_Plane, [""])
sketch5.MapMode = "FlatFace"
sketch5.AttachmentOffset = App.Placement(App.Vector(0, 0, -470.812037), App.Rotation())
sketch5.addGeometry(Part.Circle(App.Vector(-145, 40, 0), App.Vector(0, 0, 1), 11), False)
sketch5.addGeometry(Part.Circle(App.Vector(-119, 40, 0), App.Vector(0, 0, 1), 11), False)
sketch5.addGeometry(Part.Circle(App.Vector(-88, 40, 0), App.Vector(0, 0, 1), 11), False)
sketch5.addGeometry(Part.Circle(App.Vector(-60, 40, 0), App.Vector(0, 0, 1), 11), False)
sketch5.addGeometry(Part.Circle(App.Vector(-33, 40, 0), App.Vector(0, 0, 1), 11), False)
sketch5.addConstraint(Sketcher.Constraint("Equal", 0, 1))
sketch5.addConstraint(Sketcher.Constraint("Equal", 1, 2))
sketch5.addConstraint(Sketcher.Constraint("Equal", 2, 3))
sketch5.addConstraint(Sketcher.Constraint("Equal", 3, 4))
sketch5.addConstraint(Sketcher.Constraint("Horizontal", 0, 3, 1, 3))
sketch5.addConstraint(Sketcher.Constraint("Horizontal", 1, 3, 2, 3))
sketch5.addConstraint(Sketcher.Constraint("Horizontal", 2, 3, 3, 3))
sketch5.addConstraint(Sketcher.Constraint("Horizontal", 3, 3, 4, 3))
sketch5.addConstraint(Sketcher.Constraint("Diameter", 0, 22.0))
sketch5.addConstraint(Sketcher.Constraint("DistanceY", -1, 1, 0, 3, 40.0))
sketch5.addConstraint(Sketcher.Constraint("DistanceX", 0, 3, -1, 1, 144.762351))
sketch5.addConstraint(Sketcher.Constraint("DistanceX", 1, 3, -1, 1, 118.868831))
sketch5.addConstraint(Sketcher.Constraint("DistanceX", 2, 3, -1, 1, 87.715689))
sketch5.addConstraint(Sketcher.Constraint("DistanceX", 3, 3, 4, 3, 27.107279))
sketch5.addConstraint(Sketcher.Constraint("DistanceX", 3, 3, -1, 1, 60.203823))
sketch5.setExpression("Constraints[8]", "Params.sketch5_diameter")
pad5 = doc.addObject("PartDesign::Pad", "Pad004")
body.addObject(pad5)
pad5.Profile = sketch5
pad5.setExpression("Length", "Params.pad5_length")
pad5.Reversed = True

doc.recompute()
